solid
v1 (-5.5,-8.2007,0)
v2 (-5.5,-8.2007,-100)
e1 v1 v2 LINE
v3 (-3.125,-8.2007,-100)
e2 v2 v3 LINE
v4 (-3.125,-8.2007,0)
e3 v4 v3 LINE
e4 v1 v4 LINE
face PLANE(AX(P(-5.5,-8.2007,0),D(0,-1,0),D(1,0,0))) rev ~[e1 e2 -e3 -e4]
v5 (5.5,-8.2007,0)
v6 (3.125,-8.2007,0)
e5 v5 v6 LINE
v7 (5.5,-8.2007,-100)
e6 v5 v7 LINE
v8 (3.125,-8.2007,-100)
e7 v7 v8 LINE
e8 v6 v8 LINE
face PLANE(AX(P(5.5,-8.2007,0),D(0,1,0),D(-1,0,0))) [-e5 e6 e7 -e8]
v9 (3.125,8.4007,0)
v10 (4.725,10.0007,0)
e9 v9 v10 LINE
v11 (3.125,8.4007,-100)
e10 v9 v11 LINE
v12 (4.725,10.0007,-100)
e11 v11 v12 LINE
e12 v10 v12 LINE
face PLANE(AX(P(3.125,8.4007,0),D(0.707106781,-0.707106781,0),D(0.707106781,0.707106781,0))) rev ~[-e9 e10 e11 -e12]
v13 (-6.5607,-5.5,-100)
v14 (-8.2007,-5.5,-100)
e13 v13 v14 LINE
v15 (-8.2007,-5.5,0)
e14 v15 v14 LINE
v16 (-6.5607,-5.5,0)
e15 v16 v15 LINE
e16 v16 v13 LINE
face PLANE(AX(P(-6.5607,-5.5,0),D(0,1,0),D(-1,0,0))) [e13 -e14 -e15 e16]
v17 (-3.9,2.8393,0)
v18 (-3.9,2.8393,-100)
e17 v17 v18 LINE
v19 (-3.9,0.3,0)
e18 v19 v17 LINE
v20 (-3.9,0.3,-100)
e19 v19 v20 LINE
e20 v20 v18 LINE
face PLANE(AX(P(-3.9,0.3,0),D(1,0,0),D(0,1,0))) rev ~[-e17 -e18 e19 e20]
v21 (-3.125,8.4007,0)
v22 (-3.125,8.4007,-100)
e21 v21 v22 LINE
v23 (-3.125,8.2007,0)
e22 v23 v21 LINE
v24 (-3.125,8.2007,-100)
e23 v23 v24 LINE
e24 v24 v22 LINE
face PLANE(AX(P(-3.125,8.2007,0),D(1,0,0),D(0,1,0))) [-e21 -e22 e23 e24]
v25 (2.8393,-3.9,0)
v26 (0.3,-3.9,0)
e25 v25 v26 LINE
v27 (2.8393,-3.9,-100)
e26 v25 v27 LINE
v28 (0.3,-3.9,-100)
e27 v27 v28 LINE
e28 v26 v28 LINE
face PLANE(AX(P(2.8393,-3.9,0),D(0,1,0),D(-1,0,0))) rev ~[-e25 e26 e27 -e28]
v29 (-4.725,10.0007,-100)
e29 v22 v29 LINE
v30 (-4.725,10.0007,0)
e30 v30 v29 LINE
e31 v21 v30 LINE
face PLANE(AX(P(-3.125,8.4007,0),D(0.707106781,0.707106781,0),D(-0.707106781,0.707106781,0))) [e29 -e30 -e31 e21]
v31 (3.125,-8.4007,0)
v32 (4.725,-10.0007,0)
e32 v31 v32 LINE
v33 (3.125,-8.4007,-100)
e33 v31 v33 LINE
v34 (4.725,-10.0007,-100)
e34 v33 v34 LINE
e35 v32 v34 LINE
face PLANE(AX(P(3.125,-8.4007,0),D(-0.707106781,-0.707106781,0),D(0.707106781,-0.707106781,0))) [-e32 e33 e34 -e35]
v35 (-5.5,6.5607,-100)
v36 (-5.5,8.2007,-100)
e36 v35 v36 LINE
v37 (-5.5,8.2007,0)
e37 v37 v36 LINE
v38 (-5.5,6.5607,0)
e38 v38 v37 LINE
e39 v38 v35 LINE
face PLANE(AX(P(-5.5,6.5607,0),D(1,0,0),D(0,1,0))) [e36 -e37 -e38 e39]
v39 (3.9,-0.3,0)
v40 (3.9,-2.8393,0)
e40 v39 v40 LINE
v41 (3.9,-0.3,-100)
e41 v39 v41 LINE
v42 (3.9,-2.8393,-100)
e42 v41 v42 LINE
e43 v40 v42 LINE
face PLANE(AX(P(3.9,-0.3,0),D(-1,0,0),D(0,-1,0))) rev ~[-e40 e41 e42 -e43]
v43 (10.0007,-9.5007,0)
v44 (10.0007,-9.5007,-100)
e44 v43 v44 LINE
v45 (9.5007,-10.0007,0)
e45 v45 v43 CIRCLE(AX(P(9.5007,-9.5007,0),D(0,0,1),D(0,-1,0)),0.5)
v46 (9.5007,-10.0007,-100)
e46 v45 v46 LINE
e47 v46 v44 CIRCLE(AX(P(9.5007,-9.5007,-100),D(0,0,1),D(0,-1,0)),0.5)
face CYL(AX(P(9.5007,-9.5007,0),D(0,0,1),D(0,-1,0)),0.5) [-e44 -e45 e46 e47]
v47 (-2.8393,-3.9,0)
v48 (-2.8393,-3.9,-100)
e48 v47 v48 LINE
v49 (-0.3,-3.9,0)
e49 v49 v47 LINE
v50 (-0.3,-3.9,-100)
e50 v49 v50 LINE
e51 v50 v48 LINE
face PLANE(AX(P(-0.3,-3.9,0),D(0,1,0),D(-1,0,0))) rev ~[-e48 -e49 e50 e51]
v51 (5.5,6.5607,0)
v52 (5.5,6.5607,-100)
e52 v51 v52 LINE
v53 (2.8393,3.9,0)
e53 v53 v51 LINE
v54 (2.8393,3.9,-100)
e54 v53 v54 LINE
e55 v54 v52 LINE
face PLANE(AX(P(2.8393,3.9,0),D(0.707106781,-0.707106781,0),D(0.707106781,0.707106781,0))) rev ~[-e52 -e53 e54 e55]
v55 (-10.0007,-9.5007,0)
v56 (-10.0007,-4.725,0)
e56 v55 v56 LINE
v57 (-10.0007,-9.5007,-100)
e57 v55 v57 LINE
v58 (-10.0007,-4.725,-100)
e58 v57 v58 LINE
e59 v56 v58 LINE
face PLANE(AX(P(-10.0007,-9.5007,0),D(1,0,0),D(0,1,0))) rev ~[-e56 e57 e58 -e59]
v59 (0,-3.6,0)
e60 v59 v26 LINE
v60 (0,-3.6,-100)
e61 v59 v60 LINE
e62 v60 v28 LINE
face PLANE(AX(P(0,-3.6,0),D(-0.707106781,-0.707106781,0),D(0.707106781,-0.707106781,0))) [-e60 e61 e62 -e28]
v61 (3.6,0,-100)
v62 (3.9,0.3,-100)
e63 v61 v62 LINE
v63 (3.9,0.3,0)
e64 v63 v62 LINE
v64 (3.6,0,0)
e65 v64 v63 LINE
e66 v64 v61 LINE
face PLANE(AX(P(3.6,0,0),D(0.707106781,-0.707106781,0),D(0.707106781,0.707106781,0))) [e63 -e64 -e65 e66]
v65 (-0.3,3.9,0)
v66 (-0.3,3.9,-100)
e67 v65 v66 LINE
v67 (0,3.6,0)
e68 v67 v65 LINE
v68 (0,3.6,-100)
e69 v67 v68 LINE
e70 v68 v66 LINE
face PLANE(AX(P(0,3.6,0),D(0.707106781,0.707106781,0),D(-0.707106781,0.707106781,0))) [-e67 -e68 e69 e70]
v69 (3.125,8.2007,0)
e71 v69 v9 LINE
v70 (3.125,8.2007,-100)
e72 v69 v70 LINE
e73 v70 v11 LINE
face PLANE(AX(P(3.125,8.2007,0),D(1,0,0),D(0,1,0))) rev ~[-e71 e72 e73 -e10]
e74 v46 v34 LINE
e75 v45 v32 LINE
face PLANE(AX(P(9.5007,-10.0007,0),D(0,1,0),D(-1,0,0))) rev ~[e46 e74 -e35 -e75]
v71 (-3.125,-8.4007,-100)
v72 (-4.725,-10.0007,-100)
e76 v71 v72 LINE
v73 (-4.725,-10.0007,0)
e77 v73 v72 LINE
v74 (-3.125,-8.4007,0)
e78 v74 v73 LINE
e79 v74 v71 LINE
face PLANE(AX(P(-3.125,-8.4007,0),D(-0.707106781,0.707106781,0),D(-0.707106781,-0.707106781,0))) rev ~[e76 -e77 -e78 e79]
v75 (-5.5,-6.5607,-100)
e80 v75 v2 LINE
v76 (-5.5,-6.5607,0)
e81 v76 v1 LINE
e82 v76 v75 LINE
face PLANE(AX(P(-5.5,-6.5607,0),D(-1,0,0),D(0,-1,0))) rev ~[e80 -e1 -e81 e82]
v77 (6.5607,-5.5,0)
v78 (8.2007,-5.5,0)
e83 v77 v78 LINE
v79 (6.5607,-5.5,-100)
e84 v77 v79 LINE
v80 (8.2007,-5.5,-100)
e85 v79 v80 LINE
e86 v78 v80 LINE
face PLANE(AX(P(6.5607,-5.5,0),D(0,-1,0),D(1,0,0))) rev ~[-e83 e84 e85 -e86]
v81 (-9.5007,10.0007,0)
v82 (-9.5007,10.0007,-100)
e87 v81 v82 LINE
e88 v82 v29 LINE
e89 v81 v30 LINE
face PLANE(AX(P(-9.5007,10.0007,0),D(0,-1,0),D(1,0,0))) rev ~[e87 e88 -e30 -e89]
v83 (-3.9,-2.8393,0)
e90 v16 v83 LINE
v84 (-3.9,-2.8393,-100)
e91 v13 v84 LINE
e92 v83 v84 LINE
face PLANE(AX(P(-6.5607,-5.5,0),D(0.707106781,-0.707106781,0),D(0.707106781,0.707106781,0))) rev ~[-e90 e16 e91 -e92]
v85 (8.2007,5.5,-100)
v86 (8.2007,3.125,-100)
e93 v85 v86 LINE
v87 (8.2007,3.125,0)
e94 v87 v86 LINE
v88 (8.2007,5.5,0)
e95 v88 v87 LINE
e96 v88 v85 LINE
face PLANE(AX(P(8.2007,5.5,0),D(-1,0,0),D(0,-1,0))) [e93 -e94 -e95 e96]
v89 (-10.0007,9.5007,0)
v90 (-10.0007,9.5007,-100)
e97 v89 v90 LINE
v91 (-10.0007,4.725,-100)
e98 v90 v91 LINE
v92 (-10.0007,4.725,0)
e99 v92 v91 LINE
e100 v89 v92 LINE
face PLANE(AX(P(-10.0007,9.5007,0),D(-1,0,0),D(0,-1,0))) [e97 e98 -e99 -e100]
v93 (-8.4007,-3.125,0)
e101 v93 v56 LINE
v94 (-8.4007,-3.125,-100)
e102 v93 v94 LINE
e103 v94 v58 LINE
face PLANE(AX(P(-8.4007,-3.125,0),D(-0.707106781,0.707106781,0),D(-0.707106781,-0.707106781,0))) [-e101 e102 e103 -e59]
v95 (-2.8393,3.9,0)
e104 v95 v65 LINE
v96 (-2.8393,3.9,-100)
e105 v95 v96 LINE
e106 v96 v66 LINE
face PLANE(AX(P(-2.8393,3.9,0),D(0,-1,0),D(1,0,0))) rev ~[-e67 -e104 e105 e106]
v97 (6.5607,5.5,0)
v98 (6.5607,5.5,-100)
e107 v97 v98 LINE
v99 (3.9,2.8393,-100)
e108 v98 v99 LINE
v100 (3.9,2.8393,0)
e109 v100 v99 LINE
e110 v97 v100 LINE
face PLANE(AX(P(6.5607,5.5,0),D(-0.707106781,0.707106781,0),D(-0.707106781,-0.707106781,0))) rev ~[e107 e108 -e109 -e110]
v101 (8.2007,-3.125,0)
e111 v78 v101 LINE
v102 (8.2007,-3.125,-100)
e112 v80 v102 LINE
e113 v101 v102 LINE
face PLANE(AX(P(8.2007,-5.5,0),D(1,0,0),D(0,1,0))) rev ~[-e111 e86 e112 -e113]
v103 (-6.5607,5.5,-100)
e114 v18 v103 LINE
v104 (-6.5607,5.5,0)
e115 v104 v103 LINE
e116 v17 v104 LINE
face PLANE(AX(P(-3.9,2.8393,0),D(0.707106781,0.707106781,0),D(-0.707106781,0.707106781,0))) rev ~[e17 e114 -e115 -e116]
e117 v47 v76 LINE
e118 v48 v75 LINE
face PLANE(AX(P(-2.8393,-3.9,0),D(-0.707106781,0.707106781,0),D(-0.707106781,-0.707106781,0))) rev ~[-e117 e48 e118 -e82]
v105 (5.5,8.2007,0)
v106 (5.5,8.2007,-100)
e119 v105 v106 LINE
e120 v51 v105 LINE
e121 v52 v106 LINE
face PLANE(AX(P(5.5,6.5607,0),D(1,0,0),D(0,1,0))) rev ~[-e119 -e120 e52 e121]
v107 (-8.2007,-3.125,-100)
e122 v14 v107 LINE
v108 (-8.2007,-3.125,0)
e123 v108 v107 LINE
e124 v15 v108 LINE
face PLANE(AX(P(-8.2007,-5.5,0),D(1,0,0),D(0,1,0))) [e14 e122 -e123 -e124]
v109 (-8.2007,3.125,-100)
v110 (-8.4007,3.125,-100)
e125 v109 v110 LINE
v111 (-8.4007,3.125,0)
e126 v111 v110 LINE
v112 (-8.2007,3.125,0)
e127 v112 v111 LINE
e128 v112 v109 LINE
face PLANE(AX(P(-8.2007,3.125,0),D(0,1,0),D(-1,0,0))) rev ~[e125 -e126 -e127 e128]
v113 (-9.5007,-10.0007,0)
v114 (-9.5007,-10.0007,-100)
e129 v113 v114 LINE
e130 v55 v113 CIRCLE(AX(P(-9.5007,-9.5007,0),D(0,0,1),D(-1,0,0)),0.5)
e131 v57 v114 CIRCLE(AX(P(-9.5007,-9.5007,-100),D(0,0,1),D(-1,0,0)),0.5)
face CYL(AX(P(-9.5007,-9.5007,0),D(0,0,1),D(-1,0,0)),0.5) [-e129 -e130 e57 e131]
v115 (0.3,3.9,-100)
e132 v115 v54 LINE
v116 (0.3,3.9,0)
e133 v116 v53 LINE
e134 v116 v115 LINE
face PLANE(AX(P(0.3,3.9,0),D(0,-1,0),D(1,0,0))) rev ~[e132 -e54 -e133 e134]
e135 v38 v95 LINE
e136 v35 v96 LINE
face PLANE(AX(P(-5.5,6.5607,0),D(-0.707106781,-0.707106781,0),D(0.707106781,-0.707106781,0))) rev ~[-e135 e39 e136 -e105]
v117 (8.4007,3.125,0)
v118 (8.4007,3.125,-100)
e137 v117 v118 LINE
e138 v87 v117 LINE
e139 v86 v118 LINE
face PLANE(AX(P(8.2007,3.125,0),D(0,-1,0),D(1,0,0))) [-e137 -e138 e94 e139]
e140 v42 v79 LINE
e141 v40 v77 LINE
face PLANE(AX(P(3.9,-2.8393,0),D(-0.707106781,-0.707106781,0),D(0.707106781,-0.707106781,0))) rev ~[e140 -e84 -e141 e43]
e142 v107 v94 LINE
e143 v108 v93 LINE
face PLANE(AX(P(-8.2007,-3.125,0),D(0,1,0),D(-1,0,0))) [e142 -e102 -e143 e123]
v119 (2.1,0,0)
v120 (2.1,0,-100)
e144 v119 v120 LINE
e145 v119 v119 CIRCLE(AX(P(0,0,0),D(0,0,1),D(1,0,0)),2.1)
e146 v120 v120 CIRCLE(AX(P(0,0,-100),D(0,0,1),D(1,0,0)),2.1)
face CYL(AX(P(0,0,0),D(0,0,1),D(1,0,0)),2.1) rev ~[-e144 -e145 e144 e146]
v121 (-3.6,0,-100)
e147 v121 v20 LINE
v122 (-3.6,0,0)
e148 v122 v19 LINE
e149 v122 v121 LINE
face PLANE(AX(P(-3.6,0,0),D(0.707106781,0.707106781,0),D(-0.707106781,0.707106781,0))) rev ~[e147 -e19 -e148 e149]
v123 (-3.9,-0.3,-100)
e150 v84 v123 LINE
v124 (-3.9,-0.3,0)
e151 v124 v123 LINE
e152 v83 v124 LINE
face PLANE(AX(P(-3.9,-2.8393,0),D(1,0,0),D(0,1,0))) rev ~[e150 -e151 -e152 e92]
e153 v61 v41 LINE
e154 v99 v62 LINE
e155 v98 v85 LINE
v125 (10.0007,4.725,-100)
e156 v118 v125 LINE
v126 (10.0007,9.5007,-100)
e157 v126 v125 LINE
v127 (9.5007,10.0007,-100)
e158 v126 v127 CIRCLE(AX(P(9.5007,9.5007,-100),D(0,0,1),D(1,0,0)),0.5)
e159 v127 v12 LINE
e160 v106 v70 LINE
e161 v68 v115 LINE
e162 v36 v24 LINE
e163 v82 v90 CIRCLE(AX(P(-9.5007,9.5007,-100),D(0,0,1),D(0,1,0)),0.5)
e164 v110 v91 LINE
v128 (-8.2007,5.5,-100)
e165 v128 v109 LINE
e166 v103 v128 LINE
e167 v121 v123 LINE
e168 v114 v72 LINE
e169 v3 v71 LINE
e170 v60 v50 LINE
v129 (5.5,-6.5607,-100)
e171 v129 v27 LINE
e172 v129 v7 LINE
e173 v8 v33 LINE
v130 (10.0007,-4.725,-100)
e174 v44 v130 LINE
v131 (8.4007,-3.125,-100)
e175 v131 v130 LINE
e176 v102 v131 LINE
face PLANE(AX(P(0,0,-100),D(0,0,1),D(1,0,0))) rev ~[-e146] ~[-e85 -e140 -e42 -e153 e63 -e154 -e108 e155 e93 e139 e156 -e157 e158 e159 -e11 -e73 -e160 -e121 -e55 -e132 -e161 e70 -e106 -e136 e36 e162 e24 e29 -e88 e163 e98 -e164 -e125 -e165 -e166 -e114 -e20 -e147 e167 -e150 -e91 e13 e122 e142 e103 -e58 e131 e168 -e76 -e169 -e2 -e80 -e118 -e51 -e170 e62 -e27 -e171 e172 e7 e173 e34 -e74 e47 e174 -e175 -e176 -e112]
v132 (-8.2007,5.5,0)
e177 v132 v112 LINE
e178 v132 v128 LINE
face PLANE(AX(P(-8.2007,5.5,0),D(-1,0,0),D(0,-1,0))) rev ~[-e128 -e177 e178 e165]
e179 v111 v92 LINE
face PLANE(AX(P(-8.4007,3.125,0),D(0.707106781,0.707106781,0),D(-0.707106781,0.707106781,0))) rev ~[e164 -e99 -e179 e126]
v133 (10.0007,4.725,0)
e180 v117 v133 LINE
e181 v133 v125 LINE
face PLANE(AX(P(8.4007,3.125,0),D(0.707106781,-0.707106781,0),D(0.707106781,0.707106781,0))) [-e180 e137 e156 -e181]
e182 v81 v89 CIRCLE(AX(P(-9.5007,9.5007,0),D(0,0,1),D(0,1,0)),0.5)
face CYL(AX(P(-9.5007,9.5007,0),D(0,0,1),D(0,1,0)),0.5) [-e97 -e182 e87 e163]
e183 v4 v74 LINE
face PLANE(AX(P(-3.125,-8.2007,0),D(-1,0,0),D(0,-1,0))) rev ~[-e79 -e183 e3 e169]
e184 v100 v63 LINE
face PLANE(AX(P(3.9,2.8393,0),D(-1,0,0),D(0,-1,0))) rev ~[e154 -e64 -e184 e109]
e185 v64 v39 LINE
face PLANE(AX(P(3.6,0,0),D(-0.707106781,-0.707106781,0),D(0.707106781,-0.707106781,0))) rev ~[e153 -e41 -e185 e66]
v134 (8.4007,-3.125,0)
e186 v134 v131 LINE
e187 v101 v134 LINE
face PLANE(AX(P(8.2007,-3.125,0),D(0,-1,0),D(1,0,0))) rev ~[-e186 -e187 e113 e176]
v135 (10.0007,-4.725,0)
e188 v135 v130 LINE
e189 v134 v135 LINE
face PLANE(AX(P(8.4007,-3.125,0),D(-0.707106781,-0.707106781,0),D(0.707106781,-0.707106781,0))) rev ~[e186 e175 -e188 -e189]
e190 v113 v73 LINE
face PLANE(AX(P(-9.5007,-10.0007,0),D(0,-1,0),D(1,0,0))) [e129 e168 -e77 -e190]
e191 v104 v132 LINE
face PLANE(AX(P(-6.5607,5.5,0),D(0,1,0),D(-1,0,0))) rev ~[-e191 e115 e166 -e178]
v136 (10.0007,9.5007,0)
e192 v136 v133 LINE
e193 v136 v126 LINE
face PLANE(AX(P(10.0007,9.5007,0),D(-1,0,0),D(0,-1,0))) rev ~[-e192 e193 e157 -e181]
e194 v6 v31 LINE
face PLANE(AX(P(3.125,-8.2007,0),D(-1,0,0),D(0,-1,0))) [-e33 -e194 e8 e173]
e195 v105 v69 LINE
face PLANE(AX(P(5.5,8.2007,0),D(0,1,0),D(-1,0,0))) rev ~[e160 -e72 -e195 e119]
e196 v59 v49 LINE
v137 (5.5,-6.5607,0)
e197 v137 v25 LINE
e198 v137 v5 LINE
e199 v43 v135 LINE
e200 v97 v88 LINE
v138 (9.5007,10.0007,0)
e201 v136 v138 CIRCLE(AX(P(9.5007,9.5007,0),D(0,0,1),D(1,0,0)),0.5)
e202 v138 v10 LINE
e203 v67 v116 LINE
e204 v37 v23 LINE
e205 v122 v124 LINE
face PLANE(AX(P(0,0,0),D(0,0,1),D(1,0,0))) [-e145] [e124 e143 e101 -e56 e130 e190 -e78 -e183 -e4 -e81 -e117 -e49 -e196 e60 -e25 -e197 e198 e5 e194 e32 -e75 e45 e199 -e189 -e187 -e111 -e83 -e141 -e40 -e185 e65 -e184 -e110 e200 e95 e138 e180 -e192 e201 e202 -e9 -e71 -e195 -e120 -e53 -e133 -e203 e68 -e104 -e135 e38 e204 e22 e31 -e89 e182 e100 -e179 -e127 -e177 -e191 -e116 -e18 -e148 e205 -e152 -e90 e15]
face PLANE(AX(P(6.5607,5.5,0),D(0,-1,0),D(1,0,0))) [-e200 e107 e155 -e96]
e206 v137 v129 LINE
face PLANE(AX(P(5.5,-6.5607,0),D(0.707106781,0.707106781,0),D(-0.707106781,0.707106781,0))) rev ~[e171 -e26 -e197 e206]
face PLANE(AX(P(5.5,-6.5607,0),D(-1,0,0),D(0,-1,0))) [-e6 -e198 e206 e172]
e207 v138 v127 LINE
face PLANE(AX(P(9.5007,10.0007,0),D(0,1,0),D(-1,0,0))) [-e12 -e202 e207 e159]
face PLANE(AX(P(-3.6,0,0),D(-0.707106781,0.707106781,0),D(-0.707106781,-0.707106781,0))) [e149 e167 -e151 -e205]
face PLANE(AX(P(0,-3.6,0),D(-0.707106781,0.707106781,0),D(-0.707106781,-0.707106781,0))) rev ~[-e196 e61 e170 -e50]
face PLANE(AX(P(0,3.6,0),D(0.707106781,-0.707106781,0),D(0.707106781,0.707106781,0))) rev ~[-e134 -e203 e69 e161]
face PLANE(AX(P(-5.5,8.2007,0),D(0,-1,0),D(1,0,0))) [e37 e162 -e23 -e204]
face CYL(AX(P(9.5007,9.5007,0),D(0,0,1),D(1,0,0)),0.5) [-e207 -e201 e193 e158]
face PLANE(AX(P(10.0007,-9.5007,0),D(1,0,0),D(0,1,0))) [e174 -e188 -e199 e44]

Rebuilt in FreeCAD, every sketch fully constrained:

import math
import FreeCAD as App
import Part
import Sketcher

V = App.Vector
Q = App.Units.Quantity

doc = App.newDocument("Part")
body = doc.addObject("PartDesign::Body", "Body")

sketch1 = body.newObject("Sketcher::SketchObject", "Sketch")
sketch1.AttachmentSupport = (doc.getObject("XY_Plane"), [""])
sketch1.MapMode = "FlatFace"
sketch1.addGeometry(Part.LineSegment(V(3.9, -2.84, 0), V(3.9, -0.3, 0)), False)
sketch1.addGeometry(Part.LineSegment(V(3.9, -0.3, 0), V(3.6, 0, 0)), False)
sketch1.addGeometry(Part.LineSegment(V(3.6, 0, 0), V(3.9, 0.3, 0)), False)
sketch1.addGeometry(Part.LineSegment(V(3.9, 0.3, 0), V(3.9, 2.84, 0)), False)
sketch1.addGeometry(Part.LineSegment(V(3.9, 2.84, 0), V(6.56, 5.5, 0)), False)
sketch1.addGeometry(Part.LineSegment(V(6.56, 5.5, 0), V(8.2, 5.5, 0)), False)
sketch1.addGeometry(Part.LineSegment(V(8.2, 5.5, 0), V(8.2, 3.12, 0)), False)
sketch1.addGeometry(Part.LineSegment(V(8.2, 3.12, 0), V(8.4, 3.12, 0)), False)
sketch1.addGeometry(Part.LineSegment(V(8.4, 3.12, 0), V(10, 4.72, 0)), False)
sketch1.addGeometry(Part.LineSegment(V(10, 4.72, 0), V(10, 9.5, 0)), False)
sketch1.addGeometry(Part.ArcOfCircle(Part.Circle(V(9.5, 9.5, 0), V(0, 0, 1), 0.5), math.radians(0), math.radians(90)), False)
sketch1.addGeometry(Part.LineSegment(V(9.5, 10, 0), V(4.72, 10, 0)), False)
sketch1.addGeometry(Part.LineSegment(V(4.72, 10, 0), V(3.12, 8.4, 0)), False)
sketch1.addGeometry(Part.LineSegment(V(3.12, 8.4, 0), V(3.12, 8.2, 0)), False)
sketch1.addGeometry(Part.LineSegment(V(3.12, 8.2, 0), V(5.5, 8.2, 0)), False)
sketch1.addGeometry(Part.LineSegment(V(5.5, 8.2, 0), V(5.5, 6.56, 0)), False)
sketch1.addGeometry(Part.LineSegment(V(5.5, 6.56, 0), V(2.84, 3.9, 0)), False)
sketch1.addGeometry(Part.LineSegment(V(2.84, 3.9, 0), V(0.3, 3.9, 0)), False)
sketch1.addGeometry(Part.LineSegment(V(0.3, 3.9, 0), V(0, 3.6, 0)), False)
sketch1.addGeometry(Part.LineSegment(V(0, 3.6, 0), V(-0.3, 3.9, 0)), False)
sketch1.addGeometry(Part.LineSegment(V(-0.3, 3.9, 0), V(-2.84, 3.9, 0)), False)
sketch1.addGeometry(Part.LineSegment(V(-2.84, 3.9, 0), V(-5.5, 6.56, 0)), False)
sketch1.addGeometry(Part.LineSegment(V(-5.5, 6.56, 0), V(-5.5, 8.2, 0)), False)
sketch1.addGeometry(Part.LineSegment(V(-5.5, 8.2, 0), V(-3.12, 8.2, 0)), False)
sketch1.addGeometry(Part.LineSegment(V(-3.12, 8.2, 0), V(-3.12, 8.4, 0)), False)
sketch1.addGeometry(Part.LineSegment(V(-3.12, 8.4, 0), V(-4.72, 10, 0)), False)
sketch1.addGeometry(Part.LineSegment(V(-4.72, 10, 0), V(-9.5, 10, 0)), False)
sketch1.addGeometry(Part.ArcOfCircle(Part.Circle(V(-9.5, 9.5, 0), V(0, 0, 1), 0.5), math.radians(90), math.radians(180)), False)
sketch1.addGeometry(Part.LineSegment(V(-10, 9.5, 0), V(-10, 4.72, 0)), False)
sketch1.addGeometry(Part.LineSegment(V(-10, 4.72, 0), V(-8.4, 3.12, 0)), False)
sketch1.addGeometry(Part.LineSegment(V(-8.4, 3.12, 0), V(-8.2, 3.12, 0)), False)
sketch1.addGeometry(Part.LineSegment(V(-8.2, 3.12, 0), V(-8.2, 5.5, 0)), False)
sketch1.addGeometry(Part.LineSegment(V(-8.2, 5.5, 0), V(-6.56, 5.5, 0)), False)
sketch1.addGeometry(Part.LineSegment(V(-6.56, 5.5, 0), V(-3.9, 2.84, 0)), False)
sketch1.addGeometry(Part.LineSegment(V(-3.9, 2.84, 0), V(-3.9, 0.3, 0)), False)
sketch1.addGeometry(Part.LineSegment(V(-3.9, 0.3, 0), V(-3.6, 0, 0)), False)
sketch1.addGeometry(Part.LineSegment(V(-3.6, 0, 0), V(-3.9, -0.3, 0)), False)
sketch1.addGeometry(Part.LineSegment(V(-3.9, -0.3, 0), V(-3.9, -2.84, 0)), False)
sketch1.addGeometry(Part.LineSegment(V(-3.9, -2.84, 0), V(-6.56, -5.5, 0)), False)
sketch1.addGeometry(Part.LineSegment(V(-6.56, -5.5, 0), V(-8.2, -5.5, 0)), False)
sketch1.addGeometry(Part.LineSegment(V(-8.2, -5.5, 0), V(-8.2, -3.12, 0)), False)
sketch1.addGeometry(Part.LineSegment(V(-8.2, -3.12, 0), V(-8.4, -3.12, 0)), False)
sketch1.addGeometry(Part.LineSegment(V(-8.4, -3.12, 0), V(-10, -4.72, 0)), False)
sketch1.addGeometry(Part.LineSegment(V(-10, -4.72, 0), V(-10, -9.5, 0)), False)
sketch1.addGeometry(Part.ArcOfCircle(Part.Circle(V(-9.5, -9.5, 0), V(0, 0, 1), 0.5), math.radians(180), math.radians(270)), False)
sketch1.addGeometry(Part.LineSegment(V(-9.5, -10, 0), V(-4.72, -10, 0)), False)
sketch1.addGeometry(Part.LineSegment(V(-4.72, -10, 0), V(-3.12, -8.4, 0)), False)
sketch1.addGeometry(Part.LineSegment(V(-3.12, -8.4, 0), V(-3.12, -8.2, 0)), False)
sketch1.addGeometry(Part.LineSegment(V(-3.12, -8.2, 0), V(-5.5, -8.2, 0)), False)
sketch1.addGeometry(Part.LineSegment(V(-5.5, -8.2, 0), V(-5.5, -6.56, 0)), False)
sketch1.addGeometry(Part.LineSegment(V(-5.5, -6.56, 0), V(-2.84, -3.9, 0)), False)
sketch1.addGeometry(Part.LineSegment(V(-2.84, -3.9, 0), V(-0.3, -3.9, 0)), False)
sketch1.addGeometry(Part.LineSegment(V(-0.3, -3.9, 0), V(0, -3.6, 0)), False)
sketch1.addGeometry(Part.LineSegment(V(0, -3.6, 0), V(0.3, -3.9, 0)), False)
sketch1.addGeometry(Part.LineSegment(V(0.3, -3.9, 0), V(2.84, -3.9, 0)), False)
sketch1.addGeometry(Part.LineSegment(V(2.84, -3.9, 0), V(5.5, -6.56, 0)), False)
sketch1.addGeometry(Part.LineSegment(V(5.5, -6.56, 0), V(5.5, -8.2, 0)), False)
sketch1.addGeometry(Part.LineSegment(V(5.5, -8.2, 0), V(3.12, -8.2, 0)), False)
sketch1.addGeometry(Part.LineSegment(V(3.12, -8.2, 0), V(3.12, -8.4, 0)), False)
sketch1.addGeometry(Part.LineSegment(V(3.12, -8.4, 0), V(4.72, -10, 0)), False)
sketch1.addGeometry(Part.LineSegment(V(4.72, -10, 0), V(9.5, -10, 0)), False)
sketch1.addGeometry(Part.ArcOfCircle(Part.Circle(V(9.5, -9.5, 0), V(0, 0, 1), 0.5), math.radians(-90), math.radians(0)), False)
sketch1.addGeometry(Part.LineSegment(V(10, -9.5, 0), V(10, -4.72, 0)), False)
sketch1.addGeometry(Part.LineSegment(V(10, -4.72, 0), V(8.4, -3.12, 0)), False)
sketch1.addGeometry(Part.LineSegment(V(8.4, -3.12, 0), V(8.2, -3.12, 0)), False)
sketch1.addGeometry(Part.LineSegment(V(8.2, -3.12, 0), V(8.2, -5.5, 0)), False)
sketch1.addGeometry(Part.LineSegment(V(8.2, -5.5, 0), V(6.56, -5.5, 0)), False)
sketch1.addGeometry(Part.LineSegment(V(6.56, -5.5, 0), V(3.9, -2.84, 0)), False)
sketch1.addGeometry(Part.Circle(V(0, 0, 0), V(0, 0, 1), 2.1), False)
sketch1.addConstraint(Sketcher.Constraint("Coincident", 0, 2, 1, 1))
sketch1.addConstraint(Sketcher.Constraint("Coincident", 1, 2, 2, 1))
sketch1.addConstraint(Sketcher.Constraint("Coincident", 2, 2, 3, 1))
sketch1.addConstraint(Sketcher.Constraint("Coincident", 3, 2, 4, 1))
sketch1.addConstraint(Sketcher.Constraint("Coincident", 4, 2, 5, 1))
sketch1.addConstraint(Sketcher.Constraint("Coincident", 5, 2, 6, 1))
sketch1.addConstraint(Sketcher.Constraint("Coincident", 6, 2, 7, 1))
sketch1.addConstraint(Sketcher.Constraint("Coincident", 7, 2, 8, 1))
sketch1.addConstraint(Sketcher.Constraint("Coincident", 8, 2, 9, 1))
sketch1.addConstraint(Sketcher.Constraint("Tangent", 9, 2, 10, 1))
sketch1.addConstraint(Sketcher.Constraint("Tangent", 10, 2, 11, 1))
sketch1.addConstraint(Sketcher.Constraint("Coincident", 11, 2, 12, 1))
sketch1.addConstraint(Sketcher.Constraint("Coincident", 12, 2, 13, 1))
sketch1.addConstraint(Sketcher.Constraint("Coincident", 13, 2, 14, 1))
sketch1.addConstraint(Sketcher.Constraint("Coincident", 14, 2, 15, 1))
sketch1.addConstraint(Sketcher.Constraint("Coincident", 15, 2, 16, 1))
sketch1.addConstraint(Sketcher.Constraint("Coincident", 16, 2, 17, 1))
sketch1.addConstraint(Sketcher.Constraint("Coincident", 17, 2, 18, 1))
sketch1.addConstraint(Sketcher.Constraint("Coincident", 18, 2, 19, 1))
sketch1.addConstraint(Sketcher.Constraint("Coincident", 19, 2, 20, 1))
sketch1.addConstraint(Sketcher.Constraint("Coincident", 20, 2, 21, 1))
sketch1.addConstraint(Sketcher.Constraint("Coincident", 21, 2, 22, 1))
sketch1.addConstraint(Sketcher.Constraint("Coincident", 22, 2, 23, 1))
sketch1.addConstraint(Sketcher.Constraint("Coincident", 23, 2, 24, 1))
sketch1.addConstraint(Sketcher.Constraint("Coincident", 24, 2, 25, 1))
sketch1.addConstraint(Sketcher.Constraint("Coincident", 25, 2, 26, 1))
sketch1.addConstraint(Sketcher.Constraint("Tangent", 26, 2, 27, 1))
sketch1.addConstraint(Sketcher.Constraint("Tangent", 27, 2, 28, 1))
sketch1.addConstraint(Sketcher.Constraint("Coincident", 28, 2, 29, 1))
sketch1.addConstraint(Sketcher.Constraint("Coincident", 29, 2, 30, 1))
sketch1.addConstraint(Sketcher.Constraint("Coincident", 30, 2, 31, 1))
sketch1.addConstraint(Sketcher.Constraint("Coincident", 31, 2, 32, 1))
sketch1.addConstraint(Sketcher.Constraint("Coincident", 32, 2, 33, 1))
sketch1.addConstraint(Sketcher.Constraint("Coincident", 33, 2, 34, 1))
sketch1.addConstraint(Sketcher.Constraint("Coincident", 34, 2, 35, 1))
sketch1.addConstraint(Sketcher.Constraint("Coincident", 35, 2, 36, 1))
sketch1.addConstraint(Sketcher.Constraint("Coincident", 36, 2, 37, 1))
sketch1.addConstraint(Sketcher.Constraint("Coincident", 37, 2, 38, 1))
sketch1.addConstraint(Sketcher.Constraint("Coincident", 38, 2, 39, 1))
sketch1.addConstraint(Sketcher.Constraint("Coincident", 39, 2, 40, 1))
sketch1.addConstraint(Sketcher.Constraint("Coincident", 40, 2, 41, 1))
sketch1.addConstraint(Sketcher.Constraint("Coincident", 41, 2, 42, 1))
sketch1.addConstraint(Sketcher.Constraint("Coincident", 42, 2, 43, 1))
sketch1.addConstraint(Sketcher.Constraint("Tangent", 43, 2, 44, 1))
sketch1.addConstraint(Sketcher.Constraint("Tangent", 44, 2, 45, 1))
sketch1.addConstraint(Sketcher.Constraint("Coincident", 45, 2, 46, 1))
sketch1.addConstraint(Sketcher.Constraint("Coincident", 46, 2, 47, 1))
sketch1.addConstraint(Sketcher.Constraint("Coincident", 47, 2, 48, 1))
sketch1.addConstraint(Sketcher.Constraint("Coincident", 48, 2, 49, 1))
sketch1.addConstraint(Sketcher.Constraint("Coincident", 49, 2, 50, 1))
sketch1.addConstraint(Sketcher.Constraint("Coincident", 50, 2, 51, 1))
sketch1.addConstraint(Sketcher.Constraint("Coincident", 51, 2, 52, 1))
sketch1.addConstraint(Sketcher.Constraint("Coincident", 52, 2, 53, 1))
sketch1.addConstraint(Sketcher.Constraint("Coincident", 53, 2, 54, 1))
sketch1.addConstraint(Sketcher.Constraint("Coincident", 54, 2, 55, 1))
sketch1.addConstraint(Sketcher.Constraint("Coincident", 55, 2, 56, 1))
sketch1.addConstraint(Sketcher.Constraint("Coincident", 56, 2, 57, 1))
sketch1.addConstraint(Sketcher.Constraint("Coincident", 57, 2, 58, 1))
sketch1.addConstraint(Sketcher.Constraint("Coincident", 58, 2, 59, 1))
sketch1.addConstraint(Sketcher.Constraint("Coincident", 59, 2, 60, 1))
sketch1.addConstraint(Sketcher.Constraint("Tangent", 60, 2, 61, 1))
sketch1.addConstraint(Sketcher.Constraint("Tangent", 61, 2, 62, 1))
sketch1.addConstraint(Sketcher.Constraint("Coincident", 62, 2, 63, 1))
sketch1.addConstraint(Sketcher.Constraint("Coincident", 63, 2, 64, 1))
sketch1.addConstraint(Sketcher.Constraint("Coincident", 64, 2, 65, 1))
sketch1.addConstraint(Sketcher.Constraint("Coincident", 65, 2, 66, 1))
sketch1.addConstraint(Sketcher.Constraint("Coincident", 66, 2, 67, 1))
sketch1.addConstraint(Sketcher.Constraint("Coincident", 67, 2, 0, 1))
sketch1.addConstraint(Sketcher.Constraint("Vertical", 0))
sketch1.addConstraint(Sketcher.Constraint("Vertical", 3))
sketch1.addConstraint(Sketcher.Constraint("Horizontal", 5))
sketch1.addConstraint(Sketcher.Constraint("Vertical", 6))
sketch1.addConstraint(Sketcher.Constraint("Horizontal", 7))
sketch1.addConstraint(Sketcher.Constraint("Vertical", 9))
sketch1.addConstraint(Sketcher.Constraint("Horizontal", 11))
sketch1.addConstraint(Sketcher.Constraint("Vertical", 13))
sketch1.addConstraint(Sketcher.Constraint("Horizontal", 14))
sketch1.addConstraint(Sketcher.Constraint("Vertical", 15))
sketch1.addConstraint(Sketcher.Constraint("Horizontal", 17))
sketch1.addConstraint(Sketcher.Constraint("Horizontal", 20))
sketch1.addConstraint(Sketcher.Constraint("Vertical", 22))
sketch1.addConstraint(Sketcher.Constraint("Horizontal", 23))
sketch1.addConstraint(Sketcher.Constraint("Vertical", 24))
sketch1.addConstraint(Sketcher.Constraint("Horizontal", 26))
sketch1.addConstraint(Sketcher.Constraint("Vertical", 28))
sketch1.addConstraint(Sketcher.Constraint("Horizontal", 30))
sketch1.addConstraint(Sketcher.Constraint("Vertical", 31))
sketch1.addConstraint(Sketcher.Constraint("Horizontal", 32))
sketch1.addConstraint(Sketcher.Constraint("Vertical", 34))
sketch1.addConstraint(Sketcher.Constraint("Vertical", 37))
sketch1.addConstraint(Sketcher.Constraint("Horizontal", 39))
sketch1.addConstraint(Sketcher.Constraint("Vertical", 40))
sketch1.addConstraint(Sketcher.Constraint("Horizontal", 41))
sketch1.addConstraint(Sketcher.Constraint("Vertical", 43))
sketch1.addConstraint(Sketcher.Constraint("Horizontal", 45))
sketch1.addConstraint(Sketcher.Constraint("Vertical", 47))
sketch1.addConstraint(Sketcher.Constraint("Horizontal", 48))
sketch1.addConstraint(Sketcher.Constraint("Vertical", 49))
sketch1.addConstraint(Sketcher.Constraint("Horizontal", 51))
sketch1.addConstraint(Sketcher.Constraint("Horizontal", 54))
sketch1.addConstraint(Sketcher.Constraint("Vertical", 56))
sketch1.addConstraint(Sketcher.Constraint("Horizontal", 57))
sketch1.addConstraint(Sketcher.Constraint("Vertical", 58))
sketch1.addConstraint(Sketcher.Constraint("Horizontal", 60))
sketch1.addConstraint(Sketcher.Constraint("Vertical", 62))
sketch1.addConstraint(Sketcher.Constraint("Horizontal", 64))
sketch1.addConstraint(Sketcher.Constraint("Vertical", 65))
sketch1.addConstraint(Sketcher.Constraint("Horizontal", 66))
sketch1.addConstraint(Sketcher.Constraint("Coincident", 68, 3, -1, 1))
sketch1.addConstraint(Sketcher.Constraint("Equal", 10, 27))
sketch1.addConstraint(Sketcher.Constraint("Equal", 27, 44))
sketch1.addConstraint(Sketcher.Constraint("Equal", 44, 61))
sketch1.addConstraint(Sketcher.Constraint("Symmetric", 10, 3, 44, 3, -1, 1))
sketch1.addConstraint(Sketcher.Constraint("Symmetric", 27, 3, 61, 3, -1, 1))
sketch1.addConstraint(Sketcher.Constraint("Symmetric", 0, 2, 34, 2, -1, 1))
sketch1.addConstraint(Sketcher.Constraint("Symmetric", 1, 2, 35, 2, -1, 1))
sketch1.addConstraint(Sketcher.Constraint("Symmetric", 2, 2, 36, 2, -1, 1))
sketch1.addConstraint(Sketcher.Constraint("Symmetric", 4, 2, 38, 2, -1, 1))
sketch1.addConstraint(Sketcher.Constraint("Symmetric", 6, 2, 40, 2, -1, 1))
sketch1.addConstraint(Sketcher.Constraint("Symmetric", 12, 2, 46, 2, -1, 1))
sketch1.addConstraint(Sketcher.Constraint("Symmetric", 14, 2, 48, 2, -1, 1))
sketch1.addConstraint(Sketcher.Constraint("Symmetric", 16, 2, 50, 2, -1, 1))
sketch1.addConstraint(Sketcher.Constraint("Symmetric", 18, 2, 52, 2, -1, 1))
sketch1.addConstraint(Sketcher.Constraint("Symmetric", 19, 2, 53, 2, -1, 1))
sketch1.addConstraint(Sketcher.Constraint("Symmetric", 21, 2, 55, 2, -1, 1))
sketch1.addConstraint(Sketcher.Constraint("Symmetric", 23, 2, 57, 2, -1, 1))
sketch1.addConstraint(Sketcher.Constraint("Symmetric", 29, 2, 63, 2, -1, 1))
sketch1.addConstraint(Sketcher.Constraint("Symmetric", 31, 2, 65, 2, -1, 1))
sketch1.addConstraint(Sketcher.Constraint("Symmetric", 10, 3, 27, 3, -2))
sketch1.addConstraint(Sketcher.Constraint("Symmetric", 17, 2, 19, 2, -2))
sketch1.addConstraint(Sketcher.Constraint("Symmetric", 15, 2, 21, 2, -2))
sketch1.addConstraint(Sketcher.Constraint("Symmetric", 13, 2, 23, 2, -2))
sketch1.addConstraint(Sketcher.Constraint("Symmetric", 7, 2, 29, 2, -2))
sketch1.addConstraint(Sketcher.Constraint("Symmetric", 5, 2, 31, 2, -2))
sketch1.addConstraint(Sketcher.Constraint("Symmetric", 3, 2, 33, 2, -2))
sketch1.addConstraint(Sketcher.Constraint("PointOnObject", 1, 2, -1))
sketch1.addConstraint(Sketcher.Constraint("PointOnObject", 18, 2, -2))
sketch1.addConstraint(Sketcher.Constraint("Perpendicular", 1, 2))
sketch1.addConstraint(Sketcher.Constraint("Parallel", 2, 4))
sketch1.addConstraint(Sketcher.Constraint("Parallel", 4, 8))
sketch1.addConstraint(Sketcher.Constraint("Parallel", 8, 12))
sketch1.addConstraint(Sketcher.Constraint("Parallel", 12, 16))
sketch1.addConstraint(Sketcher.Constraint("Parallel", 16, 18))
sketch1.addConstraint(Sketcher.Constraint("Perpendicular", 18, 19))
sketch1.addConstraint(Sketcher.Constraint("Parallel", 19, 21))
sketch1.addConstraint(Sketcher.Constraint("Parallel", 21, 25))
sketch1.addConstraint(Sketcher.Constraint("Parallel", 25, 29))
sketch1.addConstraint(Sketcher.Constraint("Parallel", 29, 33))
sketch1.addConstraint(Sketcher.Constraint("Parallel", 36, 38))
sketch1.addConstraint(Sketcher.Constraint("Parallel", 38, 42))
sketch1.addConstraint(Sketcher.Constraint("Parallel", 42, 46))
sketch1.addConstraint(Sketcher.Constraint("Parallel", 46, 50))
sketch1.addConstraint(Sketcher.Constraint("Parallel", 50, 52))
sketch1.addConstraint(Sketcher.Constraint("Parallel", 53, 55))
sketch1.addConstraint(Sketcher.Constraint("Parallel", 55, 59))
sketch1.addConstraint(Sketcher.Constraint("Parallel", 59, 63))
sketch1.addConstraint(Sketcher.Constraint("Parallel", 63, 67))
sketch1.addConstraint(Sketcher.Constraint("Horizontal", 12, 2, 24, 2))
sketch1.addConstraint(Sketcher.Constraint("Horizontal", 46, 2, 58, 2))
sketch1.addConstraint(Sketcher.Constraint("Horizontal", 42, 2, 62, 2))
sketch1.addConstraint(Sketcher.Constraint("Horizontal", 37, 2, 67, 2))
sketch1.addConstraint(Sketcher.Constraint("Equal", 54, 0))
sketch1.addConstraint(Sketcher.Constraint("Equal", 57, 6))
sketch1.addConstraint(Sketcher.Constraint("Equal", 60, 9))
sketch1.addConstraint(Sketcher.Constraint("Equal", 64, 13))
sketch1.addConstraint(Sketcher.Constraint("Equal", 66, 15))
sketch1.addConstraint(Sketcher.Constraint("Equal", 8, 12))
sketch1.addConstraint(Sketcher.Constraint("Equal", 4, 16))
sketch1.addConstraint(Sketcher.Constraint("Equal", 2, 18))
sketch1.addConstraint(Sketcher.Constraint("Diameter", 68, Q("4.2 mm")))
sketch1.addConstraint(Sketcher.Constraint("Radius", 10, Q("0.5 mm")))
sketch1.addConstraint(Sketcher.Constraint("DistanceX", 7, 1, 7, 2, Q("0.2 mm")))
sketch1.addConstraint(Sketcher.Constraint("DistanceX", 5, 1, 5, 2, Q("1.64 mm")))
sketch1.addConstraint(Sketcher.Constraint("DistanceX", -1, 1, 0, 2, Q("3.9 mm")))
sketch1.addConstraint(Sketcher.Constraint("DistanceY", 0, 2, -1, 1, Q("0.3 mm")))
sketch1.addConstraint(Sketcher.Constraint("DistanceY", -1, 1, 4, 2, Q("5.5 mm")))
sketch1.addConstraint(Sketcher.Constraint("DistanceY", -1, 1, 6, 2, Q("3.125 mm")))
sketch1.addConstraint(Sketcher.Constraint("DistanceX", 11, 2, 11, 1, Q("4.7757 mm")))
sketch1.addConstraint(Sketcher.Constraint("DistanceY", -1, 1, 8, 2, Q("4.725 mm")))
pad1 = body.newObject("PartDesign::Pad", "Pad")
pad1.Profile = sketch1
pad1.Length = 100
pad1.Reversed = True

doc.recompute()
